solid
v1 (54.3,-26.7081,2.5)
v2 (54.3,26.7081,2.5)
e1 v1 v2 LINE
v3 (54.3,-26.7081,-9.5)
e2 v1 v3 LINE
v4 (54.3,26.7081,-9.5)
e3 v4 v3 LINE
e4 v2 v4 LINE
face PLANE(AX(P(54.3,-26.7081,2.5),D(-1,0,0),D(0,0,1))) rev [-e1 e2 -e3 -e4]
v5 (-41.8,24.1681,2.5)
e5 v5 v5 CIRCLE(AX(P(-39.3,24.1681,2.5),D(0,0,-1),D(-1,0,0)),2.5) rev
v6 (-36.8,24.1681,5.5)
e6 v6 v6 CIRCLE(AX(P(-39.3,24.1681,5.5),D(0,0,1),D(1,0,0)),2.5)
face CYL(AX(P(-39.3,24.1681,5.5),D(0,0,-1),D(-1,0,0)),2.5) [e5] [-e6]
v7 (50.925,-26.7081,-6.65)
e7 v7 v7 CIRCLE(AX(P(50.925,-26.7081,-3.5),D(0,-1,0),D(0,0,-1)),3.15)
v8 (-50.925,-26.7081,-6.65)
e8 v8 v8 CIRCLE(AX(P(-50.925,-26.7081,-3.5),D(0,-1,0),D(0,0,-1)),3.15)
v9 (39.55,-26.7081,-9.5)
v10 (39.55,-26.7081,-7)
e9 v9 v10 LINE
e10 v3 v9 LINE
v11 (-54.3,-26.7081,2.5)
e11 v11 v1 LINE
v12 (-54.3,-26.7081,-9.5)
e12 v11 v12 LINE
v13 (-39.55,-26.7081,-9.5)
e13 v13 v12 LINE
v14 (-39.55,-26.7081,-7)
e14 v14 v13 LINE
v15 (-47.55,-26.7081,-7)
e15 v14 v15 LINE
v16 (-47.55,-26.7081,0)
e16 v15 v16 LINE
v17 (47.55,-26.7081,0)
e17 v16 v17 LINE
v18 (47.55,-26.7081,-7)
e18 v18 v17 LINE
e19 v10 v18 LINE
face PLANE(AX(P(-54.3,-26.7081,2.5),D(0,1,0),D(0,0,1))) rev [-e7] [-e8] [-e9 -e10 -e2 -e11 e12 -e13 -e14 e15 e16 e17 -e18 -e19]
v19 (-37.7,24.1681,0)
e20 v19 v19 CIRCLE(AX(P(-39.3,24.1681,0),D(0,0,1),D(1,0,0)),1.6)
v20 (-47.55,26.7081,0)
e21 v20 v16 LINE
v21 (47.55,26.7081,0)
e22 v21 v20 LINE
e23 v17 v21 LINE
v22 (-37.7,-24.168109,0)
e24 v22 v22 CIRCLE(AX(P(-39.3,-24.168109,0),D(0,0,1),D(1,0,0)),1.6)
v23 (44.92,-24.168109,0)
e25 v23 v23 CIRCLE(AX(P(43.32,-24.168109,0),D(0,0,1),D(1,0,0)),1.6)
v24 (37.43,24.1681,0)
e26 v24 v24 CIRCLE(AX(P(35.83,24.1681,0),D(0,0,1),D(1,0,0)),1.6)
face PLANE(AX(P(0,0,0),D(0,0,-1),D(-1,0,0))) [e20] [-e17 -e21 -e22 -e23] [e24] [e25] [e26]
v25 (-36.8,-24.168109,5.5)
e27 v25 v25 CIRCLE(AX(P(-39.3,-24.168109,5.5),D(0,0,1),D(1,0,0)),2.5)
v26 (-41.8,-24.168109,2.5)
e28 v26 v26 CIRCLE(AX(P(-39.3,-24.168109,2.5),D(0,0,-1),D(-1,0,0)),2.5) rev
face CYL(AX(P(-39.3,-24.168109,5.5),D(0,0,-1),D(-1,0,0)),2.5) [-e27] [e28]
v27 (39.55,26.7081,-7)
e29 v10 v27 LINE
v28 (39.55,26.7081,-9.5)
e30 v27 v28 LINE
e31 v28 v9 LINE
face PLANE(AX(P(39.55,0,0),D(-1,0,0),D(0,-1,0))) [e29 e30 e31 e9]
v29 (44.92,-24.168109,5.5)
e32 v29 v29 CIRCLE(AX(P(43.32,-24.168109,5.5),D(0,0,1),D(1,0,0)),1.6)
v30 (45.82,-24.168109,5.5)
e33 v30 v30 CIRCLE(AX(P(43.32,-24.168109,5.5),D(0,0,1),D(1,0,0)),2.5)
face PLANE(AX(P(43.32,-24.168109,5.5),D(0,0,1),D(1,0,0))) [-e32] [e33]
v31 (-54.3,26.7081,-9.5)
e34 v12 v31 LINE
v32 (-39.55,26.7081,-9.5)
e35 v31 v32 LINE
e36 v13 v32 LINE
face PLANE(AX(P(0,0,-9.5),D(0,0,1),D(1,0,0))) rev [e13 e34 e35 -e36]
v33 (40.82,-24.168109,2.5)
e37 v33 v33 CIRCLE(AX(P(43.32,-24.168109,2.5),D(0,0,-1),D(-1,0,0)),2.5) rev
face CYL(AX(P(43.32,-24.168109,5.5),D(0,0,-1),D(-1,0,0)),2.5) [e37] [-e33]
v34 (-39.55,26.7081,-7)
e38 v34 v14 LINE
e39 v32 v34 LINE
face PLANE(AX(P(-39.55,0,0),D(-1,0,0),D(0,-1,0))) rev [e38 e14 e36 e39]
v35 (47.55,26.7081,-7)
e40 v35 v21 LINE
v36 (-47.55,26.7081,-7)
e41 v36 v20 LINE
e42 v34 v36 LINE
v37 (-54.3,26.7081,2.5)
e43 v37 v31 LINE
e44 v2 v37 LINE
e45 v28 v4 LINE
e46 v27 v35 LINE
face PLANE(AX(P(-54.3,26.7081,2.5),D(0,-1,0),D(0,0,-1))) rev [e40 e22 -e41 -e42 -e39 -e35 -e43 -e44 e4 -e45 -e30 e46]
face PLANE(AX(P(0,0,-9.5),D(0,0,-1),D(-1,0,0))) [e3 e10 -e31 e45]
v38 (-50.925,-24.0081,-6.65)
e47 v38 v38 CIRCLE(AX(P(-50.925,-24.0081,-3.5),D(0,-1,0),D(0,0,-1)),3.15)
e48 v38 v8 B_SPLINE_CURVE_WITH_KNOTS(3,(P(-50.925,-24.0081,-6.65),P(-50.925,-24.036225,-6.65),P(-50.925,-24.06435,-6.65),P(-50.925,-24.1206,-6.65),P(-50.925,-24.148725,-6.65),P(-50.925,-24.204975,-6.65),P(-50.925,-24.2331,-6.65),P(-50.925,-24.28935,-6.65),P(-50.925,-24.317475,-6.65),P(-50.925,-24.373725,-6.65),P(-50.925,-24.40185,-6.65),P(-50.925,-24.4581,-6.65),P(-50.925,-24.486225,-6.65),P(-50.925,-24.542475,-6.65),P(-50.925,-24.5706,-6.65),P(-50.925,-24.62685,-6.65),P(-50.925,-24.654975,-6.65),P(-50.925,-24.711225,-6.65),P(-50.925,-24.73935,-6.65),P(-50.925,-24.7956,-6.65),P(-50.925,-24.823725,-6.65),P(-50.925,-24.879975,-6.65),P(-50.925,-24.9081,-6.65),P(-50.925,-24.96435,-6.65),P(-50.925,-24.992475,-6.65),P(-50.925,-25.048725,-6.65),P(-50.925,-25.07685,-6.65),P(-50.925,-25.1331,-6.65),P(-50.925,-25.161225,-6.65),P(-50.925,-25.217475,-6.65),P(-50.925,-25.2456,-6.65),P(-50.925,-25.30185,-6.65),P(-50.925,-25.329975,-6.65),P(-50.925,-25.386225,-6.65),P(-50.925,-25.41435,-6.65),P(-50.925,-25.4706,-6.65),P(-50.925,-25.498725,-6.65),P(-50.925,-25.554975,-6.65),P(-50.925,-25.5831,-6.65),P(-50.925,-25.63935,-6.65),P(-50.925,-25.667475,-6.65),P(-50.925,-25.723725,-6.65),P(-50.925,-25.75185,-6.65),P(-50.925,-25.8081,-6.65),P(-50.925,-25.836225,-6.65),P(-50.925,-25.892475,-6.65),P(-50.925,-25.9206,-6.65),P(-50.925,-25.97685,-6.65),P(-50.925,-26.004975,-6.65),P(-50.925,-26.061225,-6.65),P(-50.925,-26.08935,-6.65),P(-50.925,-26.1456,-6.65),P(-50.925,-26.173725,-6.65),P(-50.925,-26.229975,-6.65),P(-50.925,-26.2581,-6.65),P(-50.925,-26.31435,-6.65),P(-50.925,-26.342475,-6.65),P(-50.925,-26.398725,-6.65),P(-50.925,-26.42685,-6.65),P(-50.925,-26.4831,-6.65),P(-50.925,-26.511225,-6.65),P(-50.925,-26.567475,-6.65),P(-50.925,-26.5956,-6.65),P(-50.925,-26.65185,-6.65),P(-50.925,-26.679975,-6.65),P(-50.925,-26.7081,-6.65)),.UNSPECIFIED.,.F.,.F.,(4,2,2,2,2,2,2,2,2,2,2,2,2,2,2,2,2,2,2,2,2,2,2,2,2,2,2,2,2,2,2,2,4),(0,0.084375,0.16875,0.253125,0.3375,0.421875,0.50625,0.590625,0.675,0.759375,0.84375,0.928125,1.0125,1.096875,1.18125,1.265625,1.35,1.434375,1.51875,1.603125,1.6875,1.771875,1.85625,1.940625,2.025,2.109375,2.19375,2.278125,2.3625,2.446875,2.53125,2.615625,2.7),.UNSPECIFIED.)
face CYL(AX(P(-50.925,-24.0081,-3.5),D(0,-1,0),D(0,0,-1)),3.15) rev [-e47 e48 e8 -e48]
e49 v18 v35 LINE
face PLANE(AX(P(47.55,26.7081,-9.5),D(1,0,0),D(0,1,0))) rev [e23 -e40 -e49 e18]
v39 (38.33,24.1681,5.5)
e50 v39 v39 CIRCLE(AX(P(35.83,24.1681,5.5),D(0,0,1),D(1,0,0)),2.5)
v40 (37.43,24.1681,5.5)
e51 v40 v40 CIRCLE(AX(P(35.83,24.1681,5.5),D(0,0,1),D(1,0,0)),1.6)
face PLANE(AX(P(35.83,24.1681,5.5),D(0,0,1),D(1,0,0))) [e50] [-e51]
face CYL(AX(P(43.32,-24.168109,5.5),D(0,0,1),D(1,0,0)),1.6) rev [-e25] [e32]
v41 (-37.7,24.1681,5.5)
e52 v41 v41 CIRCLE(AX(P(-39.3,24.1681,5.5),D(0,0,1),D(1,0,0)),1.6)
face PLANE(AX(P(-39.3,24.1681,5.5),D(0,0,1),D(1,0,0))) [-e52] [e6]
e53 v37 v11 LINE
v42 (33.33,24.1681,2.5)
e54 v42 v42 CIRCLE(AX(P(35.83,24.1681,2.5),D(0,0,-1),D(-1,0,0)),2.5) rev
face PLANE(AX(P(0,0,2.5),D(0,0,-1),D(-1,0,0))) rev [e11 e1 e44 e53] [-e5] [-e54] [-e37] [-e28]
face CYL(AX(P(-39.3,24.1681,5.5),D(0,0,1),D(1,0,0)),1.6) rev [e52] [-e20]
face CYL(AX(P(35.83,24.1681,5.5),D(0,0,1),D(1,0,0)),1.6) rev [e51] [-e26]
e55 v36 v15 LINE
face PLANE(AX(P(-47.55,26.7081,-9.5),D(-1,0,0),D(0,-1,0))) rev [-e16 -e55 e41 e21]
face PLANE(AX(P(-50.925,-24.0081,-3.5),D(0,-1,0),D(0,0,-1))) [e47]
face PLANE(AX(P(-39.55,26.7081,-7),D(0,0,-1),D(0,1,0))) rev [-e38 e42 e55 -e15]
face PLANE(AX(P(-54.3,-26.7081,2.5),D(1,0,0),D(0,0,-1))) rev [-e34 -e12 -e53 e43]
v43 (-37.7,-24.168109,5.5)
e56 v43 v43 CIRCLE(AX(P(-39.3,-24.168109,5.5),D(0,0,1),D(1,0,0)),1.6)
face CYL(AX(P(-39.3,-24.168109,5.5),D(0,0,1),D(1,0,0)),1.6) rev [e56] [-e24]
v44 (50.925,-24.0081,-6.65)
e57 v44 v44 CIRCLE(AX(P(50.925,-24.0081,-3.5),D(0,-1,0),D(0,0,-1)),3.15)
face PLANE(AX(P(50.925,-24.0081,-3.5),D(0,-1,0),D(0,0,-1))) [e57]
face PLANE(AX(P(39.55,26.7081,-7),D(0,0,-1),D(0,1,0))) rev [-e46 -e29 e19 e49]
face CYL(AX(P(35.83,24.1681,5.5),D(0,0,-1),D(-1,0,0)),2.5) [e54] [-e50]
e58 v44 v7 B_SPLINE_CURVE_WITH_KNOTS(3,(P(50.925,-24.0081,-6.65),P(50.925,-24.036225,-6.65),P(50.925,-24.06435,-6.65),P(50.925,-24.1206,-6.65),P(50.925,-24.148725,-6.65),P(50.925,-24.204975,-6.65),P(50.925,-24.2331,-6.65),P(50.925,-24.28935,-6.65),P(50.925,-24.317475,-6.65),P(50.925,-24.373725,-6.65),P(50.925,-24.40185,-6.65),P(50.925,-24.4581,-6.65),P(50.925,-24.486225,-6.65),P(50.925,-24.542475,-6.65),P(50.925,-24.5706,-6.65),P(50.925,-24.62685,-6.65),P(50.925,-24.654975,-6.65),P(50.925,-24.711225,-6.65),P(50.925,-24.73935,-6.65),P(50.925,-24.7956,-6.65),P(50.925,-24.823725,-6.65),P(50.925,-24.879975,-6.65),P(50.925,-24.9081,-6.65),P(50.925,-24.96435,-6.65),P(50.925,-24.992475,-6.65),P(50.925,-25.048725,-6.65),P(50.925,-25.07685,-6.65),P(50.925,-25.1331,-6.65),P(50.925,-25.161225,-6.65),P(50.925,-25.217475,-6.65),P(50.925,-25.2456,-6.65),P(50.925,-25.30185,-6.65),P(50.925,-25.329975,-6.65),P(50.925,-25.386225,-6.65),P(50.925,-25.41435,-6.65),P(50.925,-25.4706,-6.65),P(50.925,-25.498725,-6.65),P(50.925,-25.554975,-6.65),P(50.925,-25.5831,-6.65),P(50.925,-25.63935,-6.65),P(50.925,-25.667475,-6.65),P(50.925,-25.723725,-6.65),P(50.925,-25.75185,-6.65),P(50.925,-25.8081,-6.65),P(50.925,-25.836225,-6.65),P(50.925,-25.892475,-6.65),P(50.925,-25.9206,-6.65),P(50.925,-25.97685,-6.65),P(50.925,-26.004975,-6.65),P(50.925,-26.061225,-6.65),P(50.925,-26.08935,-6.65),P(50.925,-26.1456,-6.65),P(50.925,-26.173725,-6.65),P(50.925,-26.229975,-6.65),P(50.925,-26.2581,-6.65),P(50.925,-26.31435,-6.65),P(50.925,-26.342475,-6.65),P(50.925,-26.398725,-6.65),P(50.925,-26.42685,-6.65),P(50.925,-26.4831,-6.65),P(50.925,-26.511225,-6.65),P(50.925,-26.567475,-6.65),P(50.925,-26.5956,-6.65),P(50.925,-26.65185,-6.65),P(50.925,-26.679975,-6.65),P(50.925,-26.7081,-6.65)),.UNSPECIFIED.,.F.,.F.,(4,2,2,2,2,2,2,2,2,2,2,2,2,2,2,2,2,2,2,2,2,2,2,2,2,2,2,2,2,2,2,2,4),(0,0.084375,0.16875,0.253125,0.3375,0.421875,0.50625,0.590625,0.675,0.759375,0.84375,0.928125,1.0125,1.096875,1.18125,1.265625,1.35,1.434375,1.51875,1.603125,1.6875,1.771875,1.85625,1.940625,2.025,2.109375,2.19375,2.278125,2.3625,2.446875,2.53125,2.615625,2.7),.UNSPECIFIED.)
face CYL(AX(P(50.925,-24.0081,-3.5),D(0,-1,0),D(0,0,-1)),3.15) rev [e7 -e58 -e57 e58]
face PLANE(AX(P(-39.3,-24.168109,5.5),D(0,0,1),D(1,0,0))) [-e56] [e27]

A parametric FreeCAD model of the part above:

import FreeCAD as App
import Part
import Sketcher
from FreeCAD import Vector
Q = App.Units.Quantity

doc = App.newDocument("Part")
params = doc.addObject("Spreadsheet::Sheet", "Params")
for row, (alias, value) in enumerate([
    ("sketch1_width", "108.6 mm"),
    ("pad1_length", "2.5 mm"),
    ("sketch2_diameter", "5 mm"),
    ("pad2_length", "3 mm"),
    ("sketch3_diameter", "3.2 mm"),
    ("hole_diameter", "3.2 mm"),
    ("sketch4_width", "6.75 mm"),
    ("pad3_length", "9.5 mm"),
    ("sketch5_height", "2.5 mm"),
    ("pad4_length", "8 mm"),
    ("sketch6_height", "2.5 mm"),
    ("pad5_length", "8 mm"),
    ("sketch7_diameter", "6.3 mm"),
    ("pocket1_length", "2.7 mm"),
], start=1):
    params.set(f"A{row}", alias)
    params.set(f"B{row}", "=" + value)
    params.setAlias(f"B{row}", alias)

body = doc.addObject("PartDesign::Body", "Body")

# Sketch on XY plane
sketch1 = body.newObject("Sketcher::SketchObject", "Sketch")
sketch1.AttachmentSupport = (doc.getObject("XY_Plane"), [""])
sketch1.MapMode = "FlatFace"
sketch1.addGeometry(Part.LineSegment(Vector(-54.3, 26.7081, 0), Vector(-54.3, -26.7081, 0)), False)
sketch1.addGeometry(Part.LineSegment(Vector(-54.3, -26.7081, 0), Vector(54.3, -26.7081, 0)), False)
sketch1.addGeometry(Part.LineSegment(Vector(54.3, -26.7081, 0), Vector(54.3, 26.7081, 0)), False)
sketch1.addGeometry(Part.LineSegment(Vector(54.3, 26.7081, 0), Vector(-54.3, 26.7081, 0)), False)
sketch1.addConstraint(Sketcher.Constraint("Coincident", 0, 2, 1, 1))
sketch1.addConstraint(Sketcher.Constraint("Coincident", 1, 2, 2, 1))
sketch1.addConstraint(Sketcher.Constraint("Coincident", 2, 2, 3, 1))
sketch1.addConstraint(Sketcher.Constraint("Coincident", 3, 2, 0, 1))
sketch1.addConstraint(Sketcher.Constraint("Vertical", 0))
sketch1.addConstraint(Sketcher.Constraint("Horizontal", 1))
sketch1.addConstraint(Sketcher.Constraint("Vertical", 2))
sketch1.addConstraint(Sketcher.Constraint("Horizontal", 3))
sketch1.addConstraint(Sketcher.Constraint("Symmetric", 0, 2, 2, 2, -1, 1))
sketch1.addConstraint(Sketcher.Constraint("DistanceX", 1, 1, 1, 2, Q("108.6 mm")))
sketch1.addConstraint(Sketcher.Constraint("DistanceY", 0, 2, 0, 1, Q("53.4162 mm")))
sketch1.setExpression("Constraints[9]", "Params.sketch1_width")
pad1 = body.newObject("PartDesign::Pad", "Pad")
pad1.Profile = sketch1
pad1.setExpression("Length", "Params.pad1_length")

# Sketch on XY plane
sketch2 = body.newObject("Sketcher::SketchObject", "Sketch001")
sketch2.AttachmentSupport = (doc.getObject("XY_Plane"), [""])
sketch2.MapMode = "FlatFace"
sketch2.AttachmentOffset = App.Placement(Vector(0, 0, 2.5), App.Rotation())
sketch2.addGeometry(Part.Circle(Vector(-39.3, 24.1681, 0), Vector(0, 0, 1), 2.5), False)
sketch2.addGeometry(Part.Circle(Vector(35.83, 24.1681, 0), Vector(0, 0, 1), 2.5), False)
sketch2.addGeometry(Part.Circle(Vector(43.32, -24.168109, 0), Vector(0, 0, 1), 2.5), False)
sketch2.addGeometry(Part.Circle(Vector(-39.3, -24.168109, 0), Vector(0, 0, 1), 2.5), False)
sketch2.addConstraint(Sketcher.Constraint("Equal", 0, 1))
sketch2.addConstraint(Sketcher.Constraint("Equal", 1, 2))
sketch2.addConstraint(Sketcher.Constraint("Equal", 2, 3))
sketch2.addConstraint(Sketcher.Constraint("Symmetric", 0, 3, 3, 3, -1))
sketch2.addConstraint(Sketcher.Constraint("Horizontal", 0, 3, 1, 3))
sketch2.addConstraint(Sketcher.Constraint("Horizontal", 2, 3, 3, 3))
sketch2.addConstraint(Sketcher.Constraint("Diameter", 0, Q("5 mm")))
sketch2.addConstraint(Sketcher.Constraint("DistanceX", 0, 3, -1, 1, Q("39.3 mm")))
sketch2.addConstraint(Sketcher.Constraint("DistanceX", -1, 1, 1, 3, Q("35.83 mm")))
sketch2.addConstraint(Sketcher.Constraint("DistanceX", -1, 1, 2, 3, Q("43.32 mm")))
sketch2.addConstraint(Sketcher.Constraint("DistanceY", -1, 1, 0, 3, Q("24.1681 mm")))
sketch2.setExpression("Constraints[6]", "Params.sketch2_diameter")
pad2 = body.newObject("PartDesign::Pad", "Pad001")
pad2.Profile = sketch2
pad2.setExpression("Length", "Params.pad2_length")

# Sketch on XY plane
sketch3 = body.newObject("Sketcher::SketchObject", "Sketch002")
sketch3.AttachmentSupport = (doc.getObject("XY_Plane"), [""])
sketch3.MapMode = "FlatFace"
sketch3.AttachmentOffset = App.Placement(Vector(0, 0, 5.5), App.Rotation())
sketch3.addGeometry(Part.Circle(Vector(-39.3, 24.1681, 0), Vector(0, 0, 1), 1.6), False)
sketch3.addGeometry(Part.Circle(Vector(35.83, 24.1681, 0), Vector(0, 0, 1), 1.6), False)
sketch3.addGeometry(Part.Circle(Vector(43.32, -24.168109, 0), Vector(0, 0, 1), 1.6), False)
sketch3.addGeometry(Part.Circle(Vector(-39.3, -24.168109, 0), Vector(0, 0, 1), 1.6), False)
sketch3.addConstraint(Sketcher.Constraint("Equal", 0, 1))
sketch3.addConstraint(Sketcher.Constraint("Equal", 1, 2))
sketch3.addConstraint(Sketcher.Constraint("Equal", 2, 3))
sketch3.addConstraint(Sketcher.Constraint("Symmetric", 0, 3, 3, 3, -1))
sketch3.addConstraint(Sketcher.Constraint("Horizontal", 0, 3, 1, 3))
sketch3.addConstraint(Sketcher.Constraint("Horizontal", 2, 3, 3, 3))
sketch3.addConstraint(Sketcher.Constraint("Diameter", 0, Q("3.2 mm")))
sketch3.addConstraint(Sketcher.Constraint("DistanceX", 0, 3, -1, 1, Q("39.3 mm")))
sketch3.addConstraint(Sketcher.Constraint("DistanceX", -1, 1, 1, 3, Q("35.83 mm")))
sketch3.addConstraint(Sketcher.Constraint("DistanceX", -1, 1, 2, 3, Q("43.32 mm")))
sketch3.addConstraint(Sketcher.Constraint("DistanceY", -1, 1, 0, 3, Q("24.1681 mm")))
sketch3.setExpression("Constraints[6]", "Params.sketch3_diameter")
doc.recompute()
hole = body.newObject("PartDesign::Hole", "Hole")
hole.Profile = sketch3
hole.ThreadType = "None"
hole.setExpression("Diameter", "Params.hole_diameter")
hole.DepthType = "ThroughAll"

# Sketch on XY plane
sketch4 = body.newObject("Sketcher::SketchObject", "Sketch003")
sketch4.AttachmentSupport = (doc.getObject("XY_Plane"), [""])
sketch4.MapMode = "FlatFace"
sketch4.addGeometry(Part.LineSegment(Vector(54.3, 26.7081, 0), Vector(54.3, -26.7081, 0)), False)
sketch4.addGeometry(Part.LineSegment(Vector(54.3, -26.7081, 0), Vector(47.55, -26.7081, 0)), False)
sketch4.addGeometry(Part.LineSegment(Vector(47.55, -26.7081, 0), Vector(47.55, 26.7081, 0)), False)
sketch4.addGeometry(Part.LineSegment(Vector(47.55, 26.7081, 0), Vector(54.3, 26.7081, 0)), False)
sketch4.addGeometry(Part.LineSegment(Vector(-47.55, 26.7081, 0), Vector(-47.55, -26.7081, 0)), False)
sketch4.addGeometry(Part.LineSegment(Vector(-47.55, -26.7081, 0), Vector(-54.3, -26.7081, 0)), False)
sketch4.addGeometry(Part.LineSegment(Vector(-54.3, -26.7081, 0), Vector(-54.3, 26.7081, 0)), False)
sketch4.addGeometry(Part.LineSegment(Vector(-54.3, 26.7081, 0), Vector(-47.55, 26.7081, 0)), False)
sketch4.addConstraint(Sketcher.Constraint("Coincident", 0, 2, 1, 1))
sketch4.addConstraint(Sketcher.Constraint("Coincident", 1, 2, 2, 1))
sketch4.addConstraint(Sketcher.Constraint("Coincident", 2, 2, 3, 1))
sketch4.addConstraint(Sketcher.Constraint("Coincident", 3, 2, 0, 1))
sketch4.addConstraint(Sketcher.Constraint("Coincident", 4, 2, 5, 1))
sketch4.addConstraint(Sketcher.Constraint("Coincident", 5, 2, 6, 1))
sketch4.addConstraint(Sketcher.Constraint("Coincident", 6, 2, 7, 1))
sketch4.addConstraint(Sketcher.Constraint("Coincident", 7, 2, 4, 1))
sketch4.addConstraint(Sketcher.Constraint("Vertical", 0))
sketch4.addConstraint(Sketcher.Constraint("Horizontal", 1))
sketch4.addConstraint(Sketcher.Constraint("Vertical", 2))
sketch4.addConstraint(Sketcher.Constraint("Horizontal", 3))
sketch4.addConstraint(Sketcher.Constraint("Vertical", 4))
sketch4.addConstraint(Sketcher.Constraint("Horizontal", 5))
sketch4.addConstraint(Sketcher.Constraint("Vertical", 6))
sketch4.addConstraint(Sketcher.Constraint("Horizontal", 7))
sketch4.addConstraint(Sketcher.Constraint("Symmetric", 2, 2, 4, 2, -1, 1))
sketch4.addConstraint(Sketcher.Constraint("Symmetric", 0, 2, 6, 2, -1, 1))
sketch4.addConstraint(Sketcher.Constraint("Horizontal", 1, 2, 4, 2))
sketch4.addConstraint(Sketcher.Constraint("DistanceX", 1, 2, 1, 1, Q("6.75 mm")))
sketch4.addConstraint(Sketcher.Constraint("DistanceX", -1, 1, 0, 2, Q("54.3 mm")))
sketch4.addConstraint(Sketcher.Constraint("DistanceY", 0, 2, 0, 1, Q("53.4162 mm")))
sketch4.setExpression("Constraints[19]", "Params.sketch4_width")
pad3 = body.newObject("PartDesign::Pad", "Pad002")
pad3.Profile = sketch4
pad3.setExpression("Length", "Params.pad3_length")
pad3.Reversed = True

# Sketch on YZ plane
sketch5 = body.newObject("Sketcher::SketchObject", "Sketch004")
sketch5.AttachmentSupport = (doc.getObject("YZ_Plane"), [""])
sketch5.MapMode = "FlatFace"
sketch5.AttachmentOffset = App.Placement(Vector(0, 0, 47.55), App.Rotation())
sketch5.addGeometry(Part.LineSegment(Vector(26.7081, -9.5, 0), Vector(-26.7081, -9.5, 0)), False)
sketch5.addGeometry(Part.LineSegment(Vector(-26.7081, -9.5, 0), Vector(-26.7081, -7, 0)), False)
sketch5.addGeometry(Part.LineSegment(Vector(-26.7081, -7, 0), Vector(26.7081, -7, 0)), False)
sketch5.addGeometry(Part.LineSegment(Vector(26.7081, -7, 0), Vector(26.7081, -9.5, 0)), False)
sketch5.addConstraint(Sketcher.Constraint("Coincident", 0, 2, 1, 1))
sketch5.addConstraint(Sketcher.Constraint("Coincident", 1, 2, 2, 1))
sketch5.addConstraint(Sketcher.Constraint("Coincident", 2, 2, 3, 1))
sketch5.addConstraint(Sketcher.Constraint("Coincident", 3, 2, 0, 1))
sketch5.addConstraint(Sketcher.Constraint("Horizontal", 0))
sketch5.addConstraint(Sketcher.Constraint("Vertical", 1))
sketch5.addConstraint(Sketcher.Constraint("Horizontal", 2))
sketch5.addConstraint(Sketcher.Constraint("Vertical", 3))
sketch5.addConstraint(Sketcher.Constraint("DistanceY", 1, 1, 1, 2, Q("2.5 mm")))
sketch5.addConstraint(Sketcher.Constraint("DistanceY", 1, 2, -1, 1, Q("7 mm")))
sketch5.addConstraint(Sketcher.Constraint("DistanceX", 0, 2, 0, 1, Q("53.4162 mm")))
sketch5.addConstraint(Sketcher.Constraint("DistanceX", 0, 2, -1, 1, Q("26.7081 mm")))
sketch5.setExpression("Constraints[8]", "Params.sketch5_height")
pad4 = body.newObject("PartDesign::Pad", "Pad003")
pad4.Profile = sketch5
pad4.setExpression("Length", "Params.pad4_length")
pad4.Reversed = True

# Sketch on YZ plane
sketch6 = body.newObject("Sketcher::SketchObject", "Sketch005")
sketch6.AttachmentSupport = (doc.getObject("YZ_Plane"), [""])
sketch6.MapMode = "FlatFace"
sketch6.AttachmentOffset = App.Placement(Vector(0, 0, -47.55), App.Rotation())
sketch6.addGeometry(Part.LineSegment(Vector(26.7081, -7, 0), Vector(-26.7081, -7, 0)), False)
sketch6.addGeometry(Part.LineSegment(Vector(-26.7081, -7, 0), Vector(-26.7081, -9.5, 0)), False)
sketch6.addGeometry(Part.LineSegment(Vector(-26.7081, -9.5, 0), Vector(26.7081, -9.5, 0)), False)
sketch6.addGeometry(Part.LineSegment(Vector(26.7081, -9.5, 0), Vector(26.7081, -7, 0)), False)
sketch6.addConstraint(Sketcher.Constraint("Coincident", 0, 2, 1, 1))
sketch6.addConstraint(Sketcher.Constraint("Coincident", 1, 2, 2, 1))
sketch6.addConstraint(Sketcher.Constraint("Coincident", 2, 2, 3, 1))
sketch6.addConstraint(Sketcher.Constraint("Coincident", 3, 2, 0, 1))
sketch6.addConstraint(Sketcher.Constraint("Horizontal", 0))
sketch6.addConstraint(Sketcher.Constraint("Vertical", 1))
sketch6.addConstraint(Sketcher.Constraint("Horizontal", 2))
sketch6.addConstraint(Sketcher.Constraint("Vertical", 3))
sketch6.addConstraint(Sketcher.Constraint("DistanceY", 1, 2, 1, 1, Q("2.5 mm")))
sketch6.addConstraint(Sketcher.Constraint("DistanceY", 0, 2, -1, 1, Q("7 mm")))
sketch6.addConstraint(Sketcher.Constraint("DistanceX", 0, 2, 0, 1, Q("53.4162 mm")))
sketch6.addConstraint(Sketcher.Constraint("DistanceX", 0, 2, -1, 1, Q("26.7081 mm")))
sketch6.setExpression("Constraints[8]", "Params.sketch6_height")
pad5 = body.newObject("PartDesign::Pad", "Pad004")
pad5.Profile = sketch6
pad5.setExpression("Length", "Params.pad5_length")

# Sketch on XZ plane
sketch7 = body.newObject("Sketcher::SketchObject", "Sketch006")
sketch7.AttachmentSupport = (doc.getObject("XZ_Plane"), [""])
sketch7.MapMode = "FlatFace"
sketch7.AttachmentOffset = App.Placement(Vector(0, 0, 26.7081), App.Rotation())
sketch7.addGeometry(Part.Circle(Vector(-50.925, -3.5, 0), Vector(0, 0, 1), 3.15), False)
sketch7.addGeometry(Part.Circle(Vector(50.925, -3.5, 0), Vector(0, 0, 1), 3.15), False)
sketch7.addConstraint(Sketcher.Constraint("Equal", 0, 1))
sketch7.addConstraint(Sketcher.Constraint("Symmetric", 0, 3, 1, 3, -2))
sketch7.addConstraint(Sketcher.Constraint("Diameter", 0, Q("6.3 mm")))
sketch7.addConstraint(Sketcher.Constraint("DistanceY", 0, 3, -1, 1, Q("3.5 mm")))
sketch7.addConstraint(Sketcher.Constraint("DistanceX", 0, 3, 1, 3, Q("101.85 mm")))
sketch7.setExpression("Constraints[2]", "Params.sketch7_diameter")
pocket1 = body.newObject("PartDesign::Pocket", "Pocket")
pocket1.Profile = sketch7
pocket1.setExpression("Length", "Params.pocket1_length")

doc.recompute()
